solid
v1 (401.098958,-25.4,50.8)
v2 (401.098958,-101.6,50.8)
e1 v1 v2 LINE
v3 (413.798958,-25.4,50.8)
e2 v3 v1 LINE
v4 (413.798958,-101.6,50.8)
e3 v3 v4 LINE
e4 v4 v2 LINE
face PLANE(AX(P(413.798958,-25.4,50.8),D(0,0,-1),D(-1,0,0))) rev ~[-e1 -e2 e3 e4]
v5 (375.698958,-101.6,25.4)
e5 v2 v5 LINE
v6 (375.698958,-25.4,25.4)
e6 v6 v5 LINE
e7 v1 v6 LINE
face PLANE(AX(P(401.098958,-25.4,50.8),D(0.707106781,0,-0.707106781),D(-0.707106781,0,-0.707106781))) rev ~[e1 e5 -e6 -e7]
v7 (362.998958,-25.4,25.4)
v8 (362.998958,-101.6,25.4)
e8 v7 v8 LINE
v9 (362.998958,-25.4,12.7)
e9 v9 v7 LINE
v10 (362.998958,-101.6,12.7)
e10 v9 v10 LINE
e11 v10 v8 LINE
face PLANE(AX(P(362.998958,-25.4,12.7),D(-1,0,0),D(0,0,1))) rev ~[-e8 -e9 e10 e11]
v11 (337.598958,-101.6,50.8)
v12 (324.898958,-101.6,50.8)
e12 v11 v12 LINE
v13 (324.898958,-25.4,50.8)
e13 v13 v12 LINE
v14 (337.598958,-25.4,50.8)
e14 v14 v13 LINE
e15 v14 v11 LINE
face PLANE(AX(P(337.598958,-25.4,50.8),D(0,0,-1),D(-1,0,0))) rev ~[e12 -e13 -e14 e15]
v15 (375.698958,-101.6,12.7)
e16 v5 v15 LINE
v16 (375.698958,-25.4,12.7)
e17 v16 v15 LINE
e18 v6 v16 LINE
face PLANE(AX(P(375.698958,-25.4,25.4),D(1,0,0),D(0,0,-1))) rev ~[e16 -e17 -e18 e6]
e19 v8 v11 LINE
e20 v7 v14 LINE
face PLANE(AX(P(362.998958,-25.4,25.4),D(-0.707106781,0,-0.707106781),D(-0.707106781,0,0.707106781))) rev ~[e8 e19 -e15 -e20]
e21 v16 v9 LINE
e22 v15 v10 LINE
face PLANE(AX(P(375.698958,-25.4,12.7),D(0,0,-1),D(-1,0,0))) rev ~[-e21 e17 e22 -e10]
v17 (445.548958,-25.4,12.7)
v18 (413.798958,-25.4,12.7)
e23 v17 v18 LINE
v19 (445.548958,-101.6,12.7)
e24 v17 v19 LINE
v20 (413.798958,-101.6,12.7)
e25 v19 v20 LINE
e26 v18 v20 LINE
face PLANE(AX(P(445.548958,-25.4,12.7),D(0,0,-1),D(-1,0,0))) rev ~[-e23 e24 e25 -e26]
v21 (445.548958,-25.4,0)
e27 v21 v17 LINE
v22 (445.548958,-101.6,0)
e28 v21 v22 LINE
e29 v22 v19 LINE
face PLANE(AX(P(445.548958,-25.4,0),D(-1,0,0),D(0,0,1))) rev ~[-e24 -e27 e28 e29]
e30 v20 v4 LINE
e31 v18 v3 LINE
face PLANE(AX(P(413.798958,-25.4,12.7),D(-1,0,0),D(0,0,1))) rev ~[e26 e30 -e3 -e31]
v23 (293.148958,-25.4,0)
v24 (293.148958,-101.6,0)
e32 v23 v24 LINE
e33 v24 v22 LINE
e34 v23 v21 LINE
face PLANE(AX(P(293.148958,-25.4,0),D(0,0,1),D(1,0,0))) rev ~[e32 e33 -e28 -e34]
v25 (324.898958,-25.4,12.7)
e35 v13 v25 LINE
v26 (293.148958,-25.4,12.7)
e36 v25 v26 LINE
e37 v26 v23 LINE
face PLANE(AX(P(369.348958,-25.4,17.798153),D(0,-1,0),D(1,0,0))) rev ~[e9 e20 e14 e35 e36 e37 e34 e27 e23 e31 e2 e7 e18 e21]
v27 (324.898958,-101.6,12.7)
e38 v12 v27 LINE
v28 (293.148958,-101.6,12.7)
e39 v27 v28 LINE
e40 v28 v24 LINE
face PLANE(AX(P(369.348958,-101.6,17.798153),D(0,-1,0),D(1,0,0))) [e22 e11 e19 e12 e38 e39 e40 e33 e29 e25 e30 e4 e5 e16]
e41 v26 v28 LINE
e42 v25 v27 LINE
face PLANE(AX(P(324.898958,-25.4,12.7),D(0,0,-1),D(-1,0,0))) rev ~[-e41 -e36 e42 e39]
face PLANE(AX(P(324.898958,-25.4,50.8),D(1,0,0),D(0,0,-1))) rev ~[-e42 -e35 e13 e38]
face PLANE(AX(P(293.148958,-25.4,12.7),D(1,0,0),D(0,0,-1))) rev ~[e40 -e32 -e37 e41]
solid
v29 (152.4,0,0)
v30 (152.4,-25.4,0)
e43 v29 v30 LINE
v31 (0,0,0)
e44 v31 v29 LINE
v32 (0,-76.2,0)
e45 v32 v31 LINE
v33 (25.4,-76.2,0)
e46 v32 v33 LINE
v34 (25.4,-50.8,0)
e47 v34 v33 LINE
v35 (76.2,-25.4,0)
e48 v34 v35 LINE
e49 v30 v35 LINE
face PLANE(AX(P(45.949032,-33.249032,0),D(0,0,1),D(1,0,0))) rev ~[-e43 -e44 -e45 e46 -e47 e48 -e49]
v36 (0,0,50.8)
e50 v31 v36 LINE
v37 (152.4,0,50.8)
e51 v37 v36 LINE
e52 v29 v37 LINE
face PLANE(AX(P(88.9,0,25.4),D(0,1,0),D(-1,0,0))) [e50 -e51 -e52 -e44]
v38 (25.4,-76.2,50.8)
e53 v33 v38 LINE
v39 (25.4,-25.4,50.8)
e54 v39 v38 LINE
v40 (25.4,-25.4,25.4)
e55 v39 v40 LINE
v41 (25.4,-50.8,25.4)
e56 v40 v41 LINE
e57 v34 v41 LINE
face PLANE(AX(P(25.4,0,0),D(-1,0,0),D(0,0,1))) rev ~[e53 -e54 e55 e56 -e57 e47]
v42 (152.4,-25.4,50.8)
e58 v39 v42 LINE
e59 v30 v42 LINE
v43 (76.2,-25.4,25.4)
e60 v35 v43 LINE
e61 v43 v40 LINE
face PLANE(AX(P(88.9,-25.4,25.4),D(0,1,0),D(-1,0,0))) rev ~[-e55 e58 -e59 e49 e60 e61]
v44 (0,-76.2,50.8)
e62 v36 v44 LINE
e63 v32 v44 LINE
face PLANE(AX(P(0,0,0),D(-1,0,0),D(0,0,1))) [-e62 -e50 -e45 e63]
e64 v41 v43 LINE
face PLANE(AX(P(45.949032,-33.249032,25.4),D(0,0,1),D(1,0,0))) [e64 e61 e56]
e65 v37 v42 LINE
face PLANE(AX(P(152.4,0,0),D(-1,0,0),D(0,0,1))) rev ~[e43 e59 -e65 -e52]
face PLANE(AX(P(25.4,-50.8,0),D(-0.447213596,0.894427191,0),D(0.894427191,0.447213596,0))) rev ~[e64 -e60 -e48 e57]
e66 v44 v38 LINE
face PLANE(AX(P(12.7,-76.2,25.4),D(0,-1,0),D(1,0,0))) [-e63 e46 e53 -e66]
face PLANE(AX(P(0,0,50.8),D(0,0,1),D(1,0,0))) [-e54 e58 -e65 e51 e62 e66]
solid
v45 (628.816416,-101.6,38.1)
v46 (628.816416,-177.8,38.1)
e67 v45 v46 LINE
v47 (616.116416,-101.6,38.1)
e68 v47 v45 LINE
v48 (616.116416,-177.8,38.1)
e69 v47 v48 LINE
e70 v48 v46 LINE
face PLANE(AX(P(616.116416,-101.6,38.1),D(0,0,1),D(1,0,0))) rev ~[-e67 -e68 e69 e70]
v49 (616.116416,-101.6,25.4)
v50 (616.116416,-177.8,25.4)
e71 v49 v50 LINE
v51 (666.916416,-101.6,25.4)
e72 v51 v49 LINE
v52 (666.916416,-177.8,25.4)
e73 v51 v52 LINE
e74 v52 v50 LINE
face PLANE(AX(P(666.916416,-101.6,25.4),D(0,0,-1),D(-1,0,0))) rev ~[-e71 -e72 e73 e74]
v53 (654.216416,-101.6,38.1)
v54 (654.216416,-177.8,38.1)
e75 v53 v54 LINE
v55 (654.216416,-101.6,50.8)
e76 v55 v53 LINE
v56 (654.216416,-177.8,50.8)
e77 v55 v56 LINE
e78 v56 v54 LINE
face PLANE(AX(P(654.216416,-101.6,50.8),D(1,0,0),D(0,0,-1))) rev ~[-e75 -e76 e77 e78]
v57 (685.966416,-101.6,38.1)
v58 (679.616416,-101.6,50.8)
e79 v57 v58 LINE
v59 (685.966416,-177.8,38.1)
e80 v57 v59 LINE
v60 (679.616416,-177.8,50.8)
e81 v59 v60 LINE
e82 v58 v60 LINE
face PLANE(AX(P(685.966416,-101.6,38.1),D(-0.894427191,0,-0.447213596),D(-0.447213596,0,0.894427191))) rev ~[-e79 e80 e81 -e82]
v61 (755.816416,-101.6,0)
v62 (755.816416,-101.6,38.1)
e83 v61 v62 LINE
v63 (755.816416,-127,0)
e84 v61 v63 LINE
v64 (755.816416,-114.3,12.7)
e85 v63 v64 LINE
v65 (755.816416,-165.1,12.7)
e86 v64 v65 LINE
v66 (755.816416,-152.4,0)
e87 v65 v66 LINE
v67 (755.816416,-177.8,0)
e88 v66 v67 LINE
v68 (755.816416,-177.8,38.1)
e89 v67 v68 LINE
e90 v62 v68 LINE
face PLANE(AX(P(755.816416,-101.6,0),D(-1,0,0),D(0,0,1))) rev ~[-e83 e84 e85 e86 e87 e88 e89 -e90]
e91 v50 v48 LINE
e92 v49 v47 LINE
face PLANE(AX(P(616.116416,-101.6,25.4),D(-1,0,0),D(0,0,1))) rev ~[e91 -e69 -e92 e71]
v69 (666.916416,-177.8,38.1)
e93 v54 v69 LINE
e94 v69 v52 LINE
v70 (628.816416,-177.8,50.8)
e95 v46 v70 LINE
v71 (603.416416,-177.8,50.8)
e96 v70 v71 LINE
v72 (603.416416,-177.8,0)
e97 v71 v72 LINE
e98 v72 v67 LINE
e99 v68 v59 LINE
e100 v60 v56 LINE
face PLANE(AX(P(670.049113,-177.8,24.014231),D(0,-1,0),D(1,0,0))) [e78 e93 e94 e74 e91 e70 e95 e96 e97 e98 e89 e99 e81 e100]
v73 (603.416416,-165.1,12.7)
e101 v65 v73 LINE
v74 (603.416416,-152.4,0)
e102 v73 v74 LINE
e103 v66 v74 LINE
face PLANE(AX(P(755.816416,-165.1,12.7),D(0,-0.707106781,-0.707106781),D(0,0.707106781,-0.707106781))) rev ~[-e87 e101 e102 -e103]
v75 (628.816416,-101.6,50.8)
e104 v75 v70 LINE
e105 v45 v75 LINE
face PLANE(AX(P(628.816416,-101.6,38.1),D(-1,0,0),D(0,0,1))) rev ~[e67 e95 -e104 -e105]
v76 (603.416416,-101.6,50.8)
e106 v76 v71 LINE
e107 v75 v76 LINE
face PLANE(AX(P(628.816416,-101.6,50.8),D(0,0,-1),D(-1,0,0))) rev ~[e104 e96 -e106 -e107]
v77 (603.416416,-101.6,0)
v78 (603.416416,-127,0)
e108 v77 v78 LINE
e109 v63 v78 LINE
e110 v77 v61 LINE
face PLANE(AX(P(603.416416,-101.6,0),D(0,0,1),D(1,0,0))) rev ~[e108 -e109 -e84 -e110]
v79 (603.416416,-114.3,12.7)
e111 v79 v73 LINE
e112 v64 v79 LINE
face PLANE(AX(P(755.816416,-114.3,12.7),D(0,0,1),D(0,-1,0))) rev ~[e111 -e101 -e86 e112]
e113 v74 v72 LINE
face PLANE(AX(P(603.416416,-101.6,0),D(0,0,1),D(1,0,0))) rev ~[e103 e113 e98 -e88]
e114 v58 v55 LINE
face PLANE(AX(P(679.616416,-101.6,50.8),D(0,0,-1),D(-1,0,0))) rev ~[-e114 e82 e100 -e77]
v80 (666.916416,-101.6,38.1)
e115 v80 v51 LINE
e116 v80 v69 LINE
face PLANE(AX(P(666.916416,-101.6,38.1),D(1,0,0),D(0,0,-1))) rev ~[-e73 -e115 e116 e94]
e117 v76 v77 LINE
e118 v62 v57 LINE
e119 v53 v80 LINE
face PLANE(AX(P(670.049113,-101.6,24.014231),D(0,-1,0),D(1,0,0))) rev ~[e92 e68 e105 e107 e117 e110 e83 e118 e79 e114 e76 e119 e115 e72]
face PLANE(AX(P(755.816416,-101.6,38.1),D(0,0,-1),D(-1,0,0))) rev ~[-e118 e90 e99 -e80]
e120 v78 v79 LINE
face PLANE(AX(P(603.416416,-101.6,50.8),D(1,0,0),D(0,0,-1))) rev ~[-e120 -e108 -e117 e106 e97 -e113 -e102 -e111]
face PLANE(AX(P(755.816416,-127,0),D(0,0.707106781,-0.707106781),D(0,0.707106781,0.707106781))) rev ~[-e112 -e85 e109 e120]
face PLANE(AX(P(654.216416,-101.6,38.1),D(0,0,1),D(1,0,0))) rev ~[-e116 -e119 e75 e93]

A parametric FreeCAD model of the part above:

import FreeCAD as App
import Part
import Sketcher

V = App.Vector
Q = App.Units.Quantity

doc = App.newDocument("Part")
body = doc.addObject("PartDesign::Body", "Body")

sketch1 = doc.addObject("Sketcher::SketchObject", "Sketch")
body.addObject(sketch1)
sketch1.AttachmentSupport = (doc.XZ_Plane, [""])
sketch1.MapMode = "FlatFace"
sketch1.addGeometry(Part.LineSegment(V(0, 51, 0), V(0, 0, 0)), False)
sketch1.addGeometry(Part.LineSegment(V(0, 0, 0), V(25, 0, 0)), False)
sketch1.addGeometry(Part.LineSegment(V(25, 0, 0), V(25, 51, 0)), False)
sketch1.addGeometry(Part.LineSegment(V(25, 51, 0), V(0, 51, 0)), False)
sketch1.addConstraint(Sketcher.Constraint("Coincident", 0, 2, 1, 1))
sketch1.addConstraint(Sketcher.Constraint("Coincident", 1, 2, 2, 1))
sketch1.addConstraint(Sketcher.Constraint("Coincident", 2, 2, 3, 1))
sketch1.addConstraint(Sketcher.Constraint("Coincident", 3, 2, 0, 1))
sketch1.addConstraint(Sketcher.Constraint("Vertical", 0))
sketch1.addConstraint(Sketcher.Constraint("Horizontal", 1))
sketch1.addConstraint(Sketcher.Constraint("Vertical", 2))
sketch1.addConstraint(Sketcher.Constraint("Horizontal", 3))
sketch1.addConstraint(Sketcher.Constraint("Coincident", 0, 2, -1, 1))
sketch1.addConstraint(Sketcher.Constraint("DistanceX", 1, 1, 1, 2, Q("1 in")))
sketch1.addConstraint(Sketcher.Constraint("DistanceY", 0, 2, 0, 1, Q("2 in")))
pad1 = doc.addObject("PartDesign::Pad", "Pad")
body.addObject(pad1)
pad1.Profile = sketch1
pad1.Length = Q("3 in")

sketch2 = doc.addObject("Sketcher::SketchObject", "Sketch001")
body.addObject(sketch2)
sketch2.AttachmentSupport = (doc.XZ_Plane, [""])
sketch2.MapMode = "FlatFace"
sketch2.addGeometry(Part.LineSegment(V(152, 51, 0), V(152, 0, 0)), False)
sketch2.addGeometry(Part.LineSegment(V(152, 0, 0), V(0, 0, 0)), False)
sketch2.addGeometry(Part.LineSegment(V(0, 0, 0), V(0, 51, 0)), False)
sketch2.addGeometry(Part.LineSegment(V(0, 51, 0), V(152, 51, 0)), False)
sketch2.addConstraint(Sketcher.Constraint("Coincident", 0, 2, 1, 1))
sketch2.addConstraint(Sketcher.Constraint("Coincident", 1, 2, 2, 1))
sketch2.addConstraint(Sketcher.Constraint("Coincident", 2, 2, 3, 1))
sketch2.addConstraint(Sketcher.Constraint("Coincident", 3, 2, 0, 1))
sketch2.addConstraint(Sketcher.Constraint("Vertical", 0))
sketch2.addConstraint(Sketcher.Constraint("Horizontal", 1))
sketch2.addConstraint(Sketcher.Constraint("Vertical", 2))
sketch2.addConstraint(Sketcher.Constraint("Horizontal", 3))
sketch2.addConstraint(Sketcher.Constraint("Coincident", 1, 2, -1, 1))
sketch2.addConstraint(Sketcher.Constraint("DistanceX", 1, 2, 1, 1, Q("6 in")))
sketch2.addConstraint(Sketcher.Constraint("DistanceY", 0, 2, 0, 1, Q("2 in")))
pad2 = doc.addObject("PartDesign::Pad", "Pad001")
body.addObject(pad2)
pad2.Profile = sketch2
pad2.Length = Q("1 in")

sketch3 = doc.addObject("Sketcher::SketchObject", "Sketch002")
body.addObject(sketch3)
sketch3.AttachmentSupport = (doc.XY_Plane, [""])
sketch3.MapMode = "FlatFace"
sketch3.addGeometry(Part.LineSegment(V(76, -25, 0), V(25, -25, 0)), False)
sketch3.addGeometry(Part.LineSegment(V(25, -25, 0), V(25, -51, 0)), False)
sketch3.addGeometry(Part.LineSegment(V(25, -51, 0), V(76, -25, 0)), False)
sketch3.addConstraint(Sketcher.Constraint("Coincident", 0, 2, 1, 1))
sketch3.addConstraint(Sketcher.Constraint("Coincident", 1, 2, 2, 1))
sketch3.addConstraint(Sketcher.Constraint("Coincident", 2, 2, 0, 1))
sketch3.addConstraint(Sketcher.Constraint("Horizontal", 0))
sketch3.addConstraint(Sketcher.Constraint("Vertical", 1))
sketch3.addConstraint(Sketcher.Constraint("DistanceX", 0, 2, 0, 1, Q("2 in")))
sketch3.addConstraint(Sketcher.Constraint("DistanceY", 1, 2, 1, 1, Q("1 in")))
sketch3.addConstraint(Sketcher.Constraint("DistanceX", -1, 1, 0, 2, Q("1 in")))
sketch3.addConstraint(Sketcher.Constraint("DistanceY", 0, 2, -1, 1, Q("1 in")))
pad3 = doc.addObject("PartDesign::Pad", "Pad002")
body.addObject(pad3)
pad3.Profile = sketch3
pad3.Length = Q("1 in")
body2 = doc.addObject("PartDesign::Body", "Body001")

sketch4 = doc.addObject("Sketcher::SketchObject", "Sketch003")
body2.addObject(sketch4)
sketch4.AttachmentSupport = (doc.getObject("XZ_Plane001"), [""])
sketch4.MapMode = "FlatFace"
sketch4.AttachmentOffset = App.Placement(V(0, 0, 1 * 25.4), App.Rotation())
sketch4.addGeometry(Part.LineSegment(V(293, 13, 0), V(293, 0, 0)), False)
sketch4.addGeometry(Part.LineSegment(V(293, 0, 0), V(446, 0, 0)), False)
sketch4.addGeometry(Part.LineSegment(V(446, 0, 0), V(446, 13, 0)), False)
sketch4.addGeometry(Part.LineSegment(V(446, 13, 0), V(414, 13, 0)), False)
sketch4.addGeometry(Part.LineSegment(V(414, 13, 0), V(414, 51, 0)), False)
sketch4.addGeometry(Part.LineSegment(V(414, 51, 0), V(401, 51, 0)), False)
sketch4.addGeometry(Part.LineSegment(V(401, 51, 0), V(376, 25, 0)), False)
sketch4.addGeometry(Part.LineSegment(V(376, 25, 0), V(376, 13, 0)), False)
sketch4.addGeometry(Part.LineSegment(V(376, 13, 0), V(363, 13, 0)), False)
sketch4.addGeometry(Part.LineSegment(V(363, 13, 0), V(363, 25, 0)), False)
sketch4.addGeometry(Part.LineSegment(V(363, 25, 0), V(338, 51, 0)), False)
sketch4.addGeometry(Part.LineSegment(V(338, 51, 0), V(325, 51, 0)), False)
sketch4.addGeometry(Part.LineSegment(V(325, 51, 0), V(325, 13, 0)), False)
sketch4.addGeometry(Part.LineSegment(V(325, 13, 0), V(293, 13, 0)), False)
sketch4.addConstraint(Sketcher.Constraint("Coincident", 0, 2, 1, 1))
sketch4.addConstraint(Sketcher.Constraint("Coincident", 1, 2, 2, 1))
sketch4.addConstraint(Sketcher.Constraint("Coincident", 2, 2, 3, 1))
sketch4.addConstraint(Sketcher.Constraint("Coincident", 3, 2, 4, 1))
sketch4.addConstraint(Sketcher.Constraint("Coincident", 4, 2, 5, 1))
sketch4.addConstraint(Sketcher.Constraint("Coincident", 5, 2, 6, 1))
sketch4.addConstraint(Sketcher.Constraint("Coincident", 6, 2, 7, 1))
sketch4.addConstraint(Sketcher.Constraint("Coincident", 7, 2, 8, 1))
sketch4.addConstraint(Sketcher.Constraint("Coincident", 8, 2, 9, 1))
sketch4.addConstraint(Sketcher.Constraint("Coincident", 9, 2, 10, 1))
sketch4.addConstraint(Sketcher.Constraint("Coincident", 10, 2, 11, 1))
sketch4.addConstraint(Sketcher.Constraint("Coincident", 11, 2, 12, 1))
sketch4.addConstraint(Sketcher.Constraint("Coincident", 12, 2, 13, 1))
sketch4.addConstraint(Sketcher.Constraint("Coincident", 13, 2, 0, 1))
sketch4.addConstraint(Sketcher.Constraint("Vertical", 0))
sketch4.addConstraint(Sketcher.Constraint("Horizontal", 1))
sketch4.addConstraint(Sketcher.Constraint("Vertical", 2))
sketch4.addConstraint(Sketcher.Constraint("Horizontal", 3))
sketch4.addConstraint(Sketcher.Constraint("Vertical", 4))
sketch4.addConstraint(Sketcher.Constraint("Horizontal", 5))
sketch4.addConstraint(Sketcher.Constraint("Vertical", 7))
sketch4.addConstraint(Sketcher.Constraint("Horizontal", 8))
sketch4.addConstraint(Sketcher.Constraint("Vertical", 9))
sketch4.addConstraint(Sketcher.Constraint("Horizontal", 11))
sketch4.addConstraint(Sketcher.Constraint("Vertical", 12))
sketch4.addConstraint(Sketcher.Constraint("Horizontal", 13))
sketch4.addConstraint(Sketcher.Constraint("PointOnObject", 0, 2, -1))
sketch4.addConstraint(Sketcher.Constraint("Perpendicular", 6, 10))
sketch4.addConstraint(Sketcher.Constraint("Horizontal", 3, 2, 7, 2))
sketch4.addConstraint(Sketcher.Constraint("Horizontal", 6, 2, 9, 2))
sketch4.addConstraint(Sketcher.Constraint("Horizontal", 5, 2, 10, 2))
sketch4.addConstraint(Sketcher.Constraint("Horizontal", 8, 2, 12, 2))
sketch4.addConstraint(Sketcher.Constraint("Equal", 5, 8))
sketch4.addConstraint(Sketcher.Constraint("Equal", 8, 11))
sketch4.addConstraint(Sketcher.Constraint("Equal", 3, 13))
sketch4.addConstraint(Sketcher.Constraint("Equal", 11, 0))
sketch4.addConstraint(Sketcher.Constraint("Equal", 2, 7))
sketch4.addConstraint(Sketcher.Constraint("Equal", 6, 10))
sketch4.addConstraint(Sketcher.Constraint("DistanceX", 1, 1, 1, 2, Q("6 in")))
sketch4.addConstraint(Sketcher.Constraint("DistanceX", 5, 2, 5, 1, Q("0.5 in")))
sketch4.addConstraint(Sketcher.Constraint("DistanceY", 4, 1, 4, 2, Q("1.5 in")))
sketch4.addConstraint(Sketcher.Constraint("DistanceX", -1, 1, 0, 2, 293.148958))
pad4 = doc.addObject("PartDesign::Pad", "Pad003")
body2.addObject(pad4)
pad4.Profile = sketch4
pad4.Length = Q("3 in")
body3 = doc.addObject("PartDesign::Body", "Body002")

sketch5 = doc.addObject("Sketcher::SketchObject", "Sketch004")
body3.addObject(sketch5)
sketch5.AttachmentSupport = (doc.getObject("XZ_Plane002"), [""])
sketch5.MapMode = "FlatFace"
sketch5.AttachmentOffset = App.Placement(V(0, 0, 4 * 25.4), App.Rotation())
sketch5.addGeometry(Part.LineSegment(V(603, 51, 0), V(603, 0, 0)), False)
sketch5.addGeometry(Part.LineSegment(V(603, 0, 0), V(756, 0, 0)), False)
sketch5.addGeometry(Part.LineSegment(V(756, 0, 0), V(756, 38, 0)), False)
sketch5.addGeometry(Part.LineSegment(V(756, 38, 0), V(686, 38, 0)), False)
sketch5.addGeometry(Part.LineSegment(V(686, 38, 0), V(680, 51, 0)), False)
sketch5.addGeometry(Part.LineSegment(V(680, 51, 0), V(654, 51, 0)), False)
sketch5.addGeometry(Part.LineSegment(V(654, 51, 0), V(654, 38, 0)), False)
sketch5.addGeometry(Part.LineSegment(V(654, 38, 0), V(667, 38, 0)), False)
sketch5.addGeometry(Part.LineSegment(V(667, 38, 0), V(667, 25, 0)), False)
sketch5.addGeometry(Part.LineSegment(V(667, 25, 0), V(616, 25, 0)), False)
sketch5.addGeometry(Part.LineSegment(V(616, 25, 0), V(616, 38, 0)), False)
sketch5.addGeometry(Part.LineSegment(V(616, 38, 0), V(629, 38, 0)), False)
sketch5.addGeometry(Part.LineSegment(V(629, 38, 0), V(629, 51, 0)), False)
sketch5.addGeometry(Part.LineSegment(V(629, 51, 0), V(603, 51, 0)), False)
sketch5.addConstraint(Sketcher.Constraint("Coincident", 0, 2, 1, 1))
sketch5.addConstraint(Sketcher.Constraint("Coincident", 1, 2, 2, 1))
sketch5.addConstraint(Sketcher.Constraint("Coincident", 2, 2, 3, 1))
sketch5.addConstraint(Sketcher.Constraint("Coincident", 3, 2, 4, 1))
sketch5.addConstraint(Sketcher.Constraint("Coincident", 4, 2, 5, 1))
sketch5.addConstraint(Sketcher.Constraint("Coincident", 5, 2, 6, 1))
sketch5.addConstraint(Sketcher.Constraint("Coincident", 6, 2, 7, 1))
sketch5.addConstraint(Sketcher.Constraint("Coincident", 7, 2, 8, 1))
sketch5.addConstraint(Sketcher.Constraint("Coincident", 8, 2, 9, 1))
sketch5.addConstraint(Sketcher.Constraint("Coincident", 9, 2, 10, 1))
sketch5.addConstraint(Sketcher.Constraint("Coincident", 10, 2, 11, 1))
sketch5.addConstraint(Sketcher.Constraint("Coincident", 11, 2, 12, 1))
sketch5.addConstraint(Sketcher.Constraint("Coincident", 12, 2, 13, 1))
sketch5.addConstraint(Sketcher.Constraint("Coincident", 13, 2, 0, 1))
sketch5.addConstraint(Sketcher.Constraint("Vertical", 0))
sketch5.addConstraint(Sketcher.Constraint("Horizontal", 1))
sketch5.addConstraint(Sketcher.Constraint("Vertical", 2))
sketch5.addConstraint(Sketcher.Constraint("Horizontal", 3))
sketch5.addConstraint(Sketcher.Constraint("Horizontal", 5))
sketch5.addConstraint(Sketcher.Constraint("Vertical", 6))
sketch5.addConstraint(Sketcher.Constraint("Horizontal", 7))
sketch5.addConstraint(Sketcher.Constraint("Vertical", 8))
sketch5.addConstraint(Sketcher.Constraint("Horizontal", 9))
sketch5.addConstraint(Sketcher.Constraint("Vertical", 10))
sketch5.addConstraint(Sketcher.Constraint("Horizontal", 11))
sketch5.addConstraint(Sketcher.Constraint("Vertical", 12))
sketch5.addConstraint(Sketcher.Constraint("Horizontal", 13))
sketch5.addConstraint(Sketcher.Constraint("PointOnObject", 0, 2, -1))
sketch5.addConstraint(Sketcher.Constraint("Horizontal", 3, 2, 6, 2))
sketch5.addConstraint(Sketcher.Constraint("Horizontal", 7, 2, 10, 2))
sketch5.addConstraint(Sketcher.Constraint("Horizontal", 5, 2, 12, 2))
sketch5.addConstraint(Sketcher.Constraint("Equal", 7, 11))
sketch5.addConstraint(Sketcher.Constraint("Equal", 5, 13))
sketch5.addConstraint(Sketcher.Constraint("Equal", 9, 0))
sketch5.addConstraint(Sketcher.Constraint("Equal", 11, 6))
sketch5.addConstraint(Sketcher.Constraint("Equal", 6, 8))
sketch5.addConstraint(Sketcher.Constraint("DistanceX", 1, 1, 1, 2, Q("6 in")))
sketch5.addConstraint(Sketcher.Constraint("DistanceX", 5, 2, 5, 1, Q("1 in")))
sketch5.addConstraint(Sketcher.Constraint("DistanceX", 9, 2, 9, 1, Q("2 in")))
sketch5.addConstraint(Sketcher.Constraint("DistanceX", 7, 1, 7, 2, Q("0.5 in")))
sketch5.addConstraint(Sketcher.Constraint("DistanceX", 3, 2, 3, 1, Q("2.75 in")))
sketch5.addConstraint(Sketcher.Constraint("DistanceX", -1, 1, 0, 2, 603.416416))
pad5 = doc.addObject("PartDesign::Pad", "Pad004")
body3.addObject(pad5)
pad5.Profile = sketch5
pad5.Length = Q("3 in")

sketch6 = doc.addObject("Sketcher::SketchObject", "Sketch005")
body3.addObject(sketch6)
sketch6.AttachmentSupport = (doc.getObject("YZ_Plane002"), [""])
sketch6.MapMode = "FlatFace"
sketch6.AttachmentOffset = App.Placement(V(0, 0, 755.816416), App.Rotation())
sketch6.addGeometry(Part.LineSegment(V(-165, 13, 0), V(-152, 0, 0)), False)
sketch6.addGeometry(Part.LineSegment(V(-152, 0, 0), V(-127, 0, 0)), False)
sketch6.addGeometry(Part.LineSegment(V(-127, 0, 0), V(-114, 13, 0)), False)
sketch6.addGeometry(Part.LineSegment(V(-114, 13, 0), V(-165, 13, 0)), False)
sketch6.addConstraint(Sketcher.Constraint("Coincident", 0, 2, 1, 1))
sketch6.addConstraint(Sketcher.Constraint("Coincident", 1, 2, 2, 1))
sketch6.addConstraint(Sketcher.Constraint("Coincident", 2, 2, 3, 1))
sketch6.addConstraint(Sketcher.Constraint("Coincident", 3, 2, 0, 1))
sketch6.addConstraint(Sketcher.Constraint("Horizontal", 1))
sketch6.addConstraint(Sketcher.Constraint("Horizontal", 3))
sketch6.addConstraint(Sketcher.Constraint("PointOnObject", 0, 2, -1))
sketch6.addConstraint(Sketcher.Constraint("Perpendicular", 0, 2))
sketch6.addConstraint(Sketcher.Constraint("Equal", 0, 2))
sketch6.addConstraint(Sketcher.Constraint("DistanceX", 1, 1, 1, 2, Q("1 in")))
sketch6.addConstraint(Sketcher.Constraint("DistanceX", 3, 2, 3, 1, Q("2 in")))
sketch6.addConstraint(Sketcher.Constraint("DistanceX", 0, 2, -1, 1, Q("6 in")))
pocket1 = doc.addObject("PartDesign::Pocket", "Pocket")
body3.addObject(pocket1)
pocket1.Profile = sketch6
pocket1.Length = Q("6 in")

doc.recompute()
